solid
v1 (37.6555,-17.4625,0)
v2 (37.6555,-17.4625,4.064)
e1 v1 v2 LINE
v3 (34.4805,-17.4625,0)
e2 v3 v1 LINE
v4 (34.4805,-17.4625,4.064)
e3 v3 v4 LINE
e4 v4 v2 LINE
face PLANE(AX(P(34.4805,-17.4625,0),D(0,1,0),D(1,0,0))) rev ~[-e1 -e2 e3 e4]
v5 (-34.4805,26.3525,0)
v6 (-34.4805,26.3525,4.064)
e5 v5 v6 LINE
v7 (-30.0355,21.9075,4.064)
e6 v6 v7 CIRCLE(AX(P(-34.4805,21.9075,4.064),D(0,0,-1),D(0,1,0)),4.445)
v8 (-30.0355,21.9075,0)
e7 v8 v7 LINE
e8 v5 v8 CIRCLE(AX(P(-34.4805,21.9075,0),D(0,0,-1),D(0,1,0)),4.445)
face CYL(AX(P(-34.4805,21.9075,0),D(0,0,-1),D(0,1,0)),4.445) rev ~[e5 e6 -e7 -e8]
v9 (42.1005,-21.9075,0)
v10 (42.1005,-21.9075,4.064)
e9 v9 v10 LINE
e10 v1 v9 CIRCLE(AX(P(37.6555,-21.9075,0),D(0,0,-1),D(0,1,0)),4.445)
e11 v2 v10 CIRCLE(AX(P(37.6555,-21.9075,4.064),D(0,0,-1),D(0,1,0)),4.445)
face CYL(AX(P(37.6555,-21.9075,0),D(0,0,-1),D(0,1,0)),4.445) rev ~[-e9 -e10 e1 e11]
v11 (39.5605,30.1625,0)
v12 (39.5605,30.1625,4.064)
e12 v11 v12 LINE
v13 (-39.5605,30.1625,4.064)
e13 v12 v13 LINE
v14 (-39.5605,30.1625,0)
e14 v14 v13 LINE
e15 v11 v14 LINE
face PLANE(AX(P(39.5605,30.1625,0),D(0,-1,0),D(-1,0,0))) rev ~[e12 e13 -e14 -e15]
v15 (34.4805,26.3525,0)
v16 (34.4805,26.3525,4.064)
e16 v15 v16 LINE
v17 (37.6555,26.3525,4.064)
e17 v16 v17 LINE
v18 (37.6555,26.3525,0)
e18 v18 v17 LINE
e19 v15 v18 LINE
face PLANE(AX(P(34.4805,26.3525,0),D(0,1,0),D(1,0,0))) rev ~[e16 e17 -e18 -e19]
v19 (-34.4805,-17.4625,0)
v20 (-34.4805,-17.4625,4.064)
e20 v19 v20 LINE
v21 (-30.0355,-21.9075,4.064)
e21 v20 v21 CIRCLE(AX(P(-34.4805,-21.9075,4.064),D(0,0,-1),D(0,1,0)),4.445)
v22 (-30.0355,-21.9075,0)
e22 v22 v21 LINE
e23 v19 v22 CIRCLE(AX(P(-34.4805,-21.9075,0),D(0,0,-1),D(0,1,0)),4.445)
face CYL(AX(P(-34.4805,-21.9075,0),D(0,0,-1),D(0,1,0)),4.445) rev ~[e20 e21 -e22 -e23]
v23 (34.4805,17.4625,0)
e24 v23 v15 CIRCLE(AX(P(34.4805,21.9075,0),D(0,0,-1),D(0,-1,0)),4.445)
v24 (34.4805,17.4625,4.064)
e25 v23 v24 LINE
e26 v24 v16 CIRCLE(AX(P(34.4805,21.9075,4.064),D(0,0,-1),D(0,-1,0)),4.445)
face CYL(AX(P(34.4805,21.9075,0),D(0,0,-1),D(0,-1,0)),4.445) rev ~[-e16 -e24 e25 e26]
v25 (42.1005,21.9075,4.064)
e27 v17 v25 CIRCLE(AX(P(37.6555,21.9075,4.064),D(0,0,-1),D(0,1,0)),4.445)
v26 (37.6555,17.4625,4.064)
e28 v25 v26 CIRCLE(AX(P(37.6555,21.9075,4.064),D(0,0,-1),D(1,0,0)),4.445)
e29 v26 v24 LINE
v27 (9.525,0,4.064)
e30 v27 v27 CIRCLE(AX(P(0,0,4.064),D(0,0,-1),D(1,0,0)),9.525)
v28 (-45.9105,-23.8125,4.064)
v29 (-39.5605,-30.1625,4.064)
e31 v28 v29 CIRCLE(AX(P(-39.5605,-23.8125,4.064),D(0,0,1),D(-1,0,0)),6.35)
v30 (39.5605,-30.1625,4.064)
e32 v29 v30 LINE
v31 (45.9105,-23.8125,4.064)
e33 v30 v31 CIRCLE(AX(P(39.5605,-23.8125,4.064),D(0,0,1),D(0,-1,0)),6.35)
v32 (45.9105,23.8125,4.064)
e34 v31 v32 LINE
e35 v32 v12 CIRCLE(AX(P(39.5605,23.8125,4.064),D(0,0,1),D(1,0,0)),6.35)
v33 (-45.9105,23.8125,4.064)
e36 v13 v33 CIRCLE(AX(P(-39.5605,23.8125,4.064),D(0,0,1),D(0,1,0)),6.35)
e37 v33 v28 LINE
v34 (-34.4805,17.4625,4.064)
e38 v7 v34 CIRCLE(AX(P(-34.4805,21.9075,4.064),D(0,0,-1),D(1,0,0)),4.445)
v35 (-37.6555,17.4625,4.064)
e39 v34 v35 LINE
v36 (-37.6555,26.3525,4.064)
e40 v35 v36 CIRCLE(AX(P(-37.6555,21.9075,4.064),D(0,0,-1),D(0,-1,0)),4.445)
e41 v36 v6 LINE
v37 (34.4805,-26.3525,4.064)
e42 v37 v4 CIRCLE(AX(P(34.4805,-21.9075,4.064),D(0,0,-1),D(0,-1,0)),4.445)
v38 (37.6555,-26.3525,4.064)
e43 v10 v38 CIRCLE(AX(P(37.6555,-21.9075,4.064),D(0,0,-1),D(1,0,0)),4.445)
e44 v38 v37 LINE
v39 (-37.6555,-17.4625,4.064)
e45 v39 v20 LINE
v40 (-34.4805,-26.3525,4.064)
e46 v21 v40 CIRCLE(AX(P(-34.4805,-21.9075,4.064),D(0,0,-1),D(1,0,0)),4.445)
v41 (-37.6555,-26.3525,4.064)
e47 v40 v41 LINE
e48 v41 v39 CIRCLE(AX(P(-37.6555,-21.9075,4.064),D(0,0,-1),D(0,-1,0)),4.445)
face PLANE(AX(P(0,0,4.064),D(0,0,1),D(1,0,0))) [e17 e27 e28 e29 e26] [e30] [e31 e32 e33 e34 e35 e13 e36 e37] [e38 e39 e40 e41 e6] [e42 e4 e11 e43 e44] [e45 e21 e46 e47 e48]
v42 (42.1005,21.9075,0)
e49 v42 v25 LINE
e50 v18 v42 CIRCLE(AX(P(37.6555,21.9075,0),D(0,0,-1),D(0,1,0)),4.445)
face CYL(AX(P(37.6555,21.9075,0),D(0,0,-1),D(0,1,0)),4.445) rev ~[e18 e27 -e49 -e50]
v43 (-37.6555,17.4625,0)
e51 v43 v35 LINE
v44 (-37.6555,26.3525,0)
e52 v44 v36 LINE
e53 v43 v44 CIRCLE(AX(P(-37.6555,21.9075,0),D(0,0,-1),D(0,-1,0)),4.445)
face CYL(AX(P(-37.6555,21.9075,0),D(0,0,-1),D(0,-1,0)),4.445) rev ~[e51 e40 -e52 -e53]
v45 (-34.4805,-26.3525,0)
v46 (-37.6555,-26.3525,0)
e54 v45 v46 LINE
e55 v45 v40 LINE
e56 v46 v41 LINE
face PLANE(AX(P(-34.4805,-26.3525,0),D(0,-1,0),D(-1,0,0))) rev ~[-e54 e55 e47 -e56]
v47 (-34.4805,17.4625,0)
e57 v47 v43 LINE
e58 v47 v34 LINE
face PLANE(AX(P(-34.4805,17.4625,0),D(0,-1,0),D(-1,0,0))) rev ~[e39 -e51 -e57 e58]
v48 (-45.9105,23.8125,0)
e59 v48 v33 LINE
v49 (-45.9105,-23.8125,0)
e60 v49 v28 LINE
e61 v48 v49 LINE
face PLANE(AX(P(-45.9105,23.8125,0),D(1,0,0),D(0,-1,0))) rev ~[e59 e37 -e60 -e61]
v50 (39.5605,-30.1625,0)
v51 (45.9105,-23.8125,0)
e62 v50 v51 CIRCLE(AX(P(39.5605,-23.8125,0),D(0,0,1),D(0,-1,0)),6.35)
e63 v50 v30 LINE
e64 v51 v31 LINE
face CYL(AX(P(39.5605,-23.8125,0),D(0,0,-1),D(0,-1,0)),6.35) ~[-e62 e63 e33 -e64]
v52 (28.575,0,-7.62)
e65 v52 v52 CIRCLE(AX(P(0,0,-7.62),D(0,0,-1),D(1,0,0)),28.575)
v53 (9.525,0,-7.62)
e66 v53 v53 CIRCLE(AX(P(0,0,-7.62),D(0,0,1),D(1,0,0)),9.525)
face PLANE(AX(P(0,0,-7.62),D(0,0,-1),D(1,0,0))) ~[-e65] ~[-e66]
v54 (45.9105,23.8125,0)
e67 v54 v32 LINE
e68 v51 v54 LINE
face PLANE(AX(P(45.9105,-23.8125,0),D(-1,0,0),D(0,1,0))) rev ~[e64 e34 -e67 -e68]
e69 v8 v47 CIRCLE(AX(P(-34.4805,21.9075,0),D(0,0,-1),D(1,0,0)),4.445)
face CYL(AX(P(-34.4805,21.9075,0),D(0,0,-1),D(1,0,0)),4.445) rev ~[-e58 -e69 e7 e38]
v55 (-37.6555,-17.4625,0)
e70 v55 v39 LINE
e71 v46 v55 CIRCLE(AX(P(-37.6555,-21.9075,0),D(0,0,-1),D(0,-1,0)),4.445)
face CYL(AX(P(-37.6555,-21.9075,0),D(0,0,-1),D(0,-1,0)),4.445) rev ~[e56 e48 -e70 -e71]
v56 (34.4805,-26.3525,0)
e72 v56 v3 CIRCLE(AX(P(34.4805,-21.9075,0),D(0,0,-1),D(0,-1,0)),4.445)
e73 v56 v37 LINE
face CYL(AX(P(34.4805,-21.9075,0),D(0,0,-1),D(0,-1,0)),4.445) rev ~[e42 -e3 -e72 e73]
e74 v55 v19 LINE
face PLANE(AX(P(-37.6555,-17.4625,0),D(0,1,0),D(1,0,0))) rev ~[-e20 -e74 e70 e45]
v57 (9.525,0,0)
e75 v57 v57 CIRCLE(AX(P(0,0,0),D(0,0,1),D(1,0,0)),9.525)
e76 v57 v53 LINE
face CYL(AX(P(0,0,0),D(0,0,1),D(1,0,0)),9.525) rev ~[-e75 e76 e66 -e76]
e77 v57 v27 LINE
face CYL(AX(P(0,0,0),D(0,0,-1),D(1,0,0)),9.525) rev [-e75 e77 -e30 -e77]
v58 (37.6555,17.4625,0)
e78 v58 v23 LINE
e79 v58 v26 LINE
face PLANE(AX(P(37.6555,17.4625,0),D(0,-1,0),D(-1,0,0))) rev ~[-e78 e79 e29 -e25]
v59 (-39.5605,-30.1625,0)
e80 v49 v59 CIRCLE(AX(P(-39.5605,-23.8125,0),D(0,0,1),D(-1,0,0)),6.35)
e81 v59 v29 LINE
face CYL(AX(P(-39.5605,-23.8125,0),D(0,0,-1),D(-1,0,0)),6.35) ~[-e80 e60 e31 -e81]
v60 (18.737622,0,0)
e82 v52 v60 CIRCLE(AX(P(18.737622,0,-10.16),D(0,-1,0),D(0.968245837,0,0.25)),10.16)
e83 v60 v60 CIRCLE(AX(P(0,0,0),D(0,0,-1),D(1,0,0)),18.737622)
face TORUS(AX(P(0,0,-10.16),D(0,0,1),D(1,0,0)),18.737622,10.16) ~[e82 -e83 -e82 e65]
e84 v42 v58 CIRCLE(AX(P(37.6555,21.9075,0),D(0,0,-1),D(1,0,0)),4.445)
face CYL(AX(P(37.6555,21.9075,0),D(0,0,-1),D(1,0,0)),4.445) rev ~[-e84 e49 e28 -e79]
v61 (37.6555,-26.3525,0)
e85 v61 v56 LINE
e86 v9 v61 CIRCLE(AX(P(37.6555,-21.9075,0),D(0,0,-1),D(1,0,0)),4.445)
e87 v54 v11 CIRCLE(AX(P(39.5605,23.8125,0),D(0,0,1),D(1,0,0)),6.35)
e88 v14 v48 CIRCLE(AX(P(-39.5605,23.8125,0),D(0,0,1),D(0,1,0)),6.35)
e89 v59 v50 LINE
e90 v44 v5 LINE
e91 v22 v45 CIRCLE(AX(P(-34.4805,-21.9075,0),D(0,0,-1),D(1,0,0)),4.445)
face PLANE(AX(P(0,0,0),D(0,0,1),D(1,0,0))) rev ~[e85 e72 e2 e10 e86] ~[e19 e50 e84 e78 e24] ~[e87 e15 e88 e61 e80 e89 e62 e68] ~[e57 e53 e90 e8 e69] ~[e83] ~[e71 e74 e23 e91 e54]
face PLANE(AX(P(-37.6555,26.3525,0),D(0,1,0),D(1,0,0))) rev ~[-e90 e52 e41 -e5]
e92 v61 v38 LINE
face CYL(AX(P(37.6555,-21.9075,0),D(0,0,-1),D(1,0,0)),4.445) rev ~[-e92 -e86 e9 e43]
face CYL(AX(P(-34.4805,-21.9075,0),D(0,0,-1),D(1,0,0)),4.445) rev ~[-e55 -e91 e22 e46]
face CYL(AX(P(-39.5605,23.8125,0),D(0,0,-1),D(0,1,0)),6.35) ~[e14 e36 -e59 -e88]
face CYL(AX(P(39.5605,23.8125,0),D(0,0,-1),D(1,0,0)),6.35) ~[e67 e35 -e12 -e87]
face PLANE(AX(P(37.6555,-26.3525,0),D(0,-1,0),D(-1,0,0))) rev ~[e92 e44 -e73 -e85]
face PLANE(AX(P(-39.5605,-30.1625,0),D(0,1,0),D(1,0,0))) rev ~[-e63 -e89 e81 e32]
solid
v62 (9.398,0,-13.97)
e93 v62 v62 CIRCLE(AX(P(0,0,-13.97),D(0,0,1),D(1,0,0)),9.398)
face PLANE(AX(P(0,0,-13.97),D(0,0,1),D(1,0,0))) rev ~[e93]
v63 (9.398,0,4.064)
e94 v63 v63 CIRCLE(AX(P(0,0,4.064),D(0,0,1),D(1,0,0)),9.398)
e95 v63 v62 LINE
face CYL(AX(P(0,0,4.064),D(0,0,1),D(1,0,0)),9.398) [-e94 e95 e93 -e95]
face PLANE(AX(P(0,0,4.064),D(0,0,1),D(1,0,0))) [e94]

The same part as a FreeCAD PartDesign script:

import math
import FreeCAD as App
import Part
import Sketcher

V = App.Vector
Q = App.Units.Quantity

doc = App.newDocument("Part")
body = doc.addObject("PartDesign::Body", "Body")

# Sketch on XY plane
sketch1 = body.newObject("Sketcher::SketchObject", "Sketch")
sketch1.AttachmentSupport = (doc.getObject("XY_Plane"), [""])
sketch1.MapMode = "FlatFace"
sketch1.addGeometry([
    Part.LineSegment(V(39.6, 30.2, 0), V(-39.6, 30.2, 0)),  # 0
    Part.ArcOfCircle(Part.Circle(V(-39.6, 23.8, 0), V(0, 0, 1), 6.3), math.radians(90), math.radians(180)),  # 1
    Part.LineSegment(V(-45.9, 23.8, 0), V(-45.9, -23.8, 0)),  # 2
    Part.ArcOfCircle(Part.Circle(V(-39.6, -23.8, 0), V(0, 0, 1), 6.3), math.radians(180), math.radians(270)),  # 3
    Part.LineSegment(V(-39.6, -30.2, 0), V(39.6, -30.2, 0)),  # 4
    Part.ArcOfCircle(Part.Circle(V(39.6, -23.8, 0), V(0, 0, 1), 6.3), math.radians(-90), math.radians(0)),  # 5
    Part.LineSegment(V(45.9, -23.8, 0), V(45.9, 23.8, 0)),  # 6
    Part.ArcOfCircle(Part.Circle(V(39.6, 23.8, 0), V(0, 0, 1), 6.3), math.radians(0), math.radians(90)),  # 7
    Part.LineSegment(V(-37.7, -17.5, 0), V(-34.5, -17.5, 0)),  # 8
    Part.ArcOfCircle(Part.Circle(V(-34.5, -21.9, 0), V(0, 0, 1), 4.4), math.radians(0), math.radians(90)),  # 9
    Part.ArcOfCircle(Part.Circle(V(-34.5, -21.9, 0), V(0, 0, 1), 4.4), math.radians(-90), math.radians(0)),  # 10
    Part.LineSegment(V(-34.5, -26.4, 0), V(-37.7, -26.4, 0)),  # 11
    Part.ArcOfCircle(Part.Circle(V(-37.7, -21.9, 0), V(0, 0, 1), 4.4), math.radians(90), math.radians(270)),  # 12
    Part.LineSegment(V(37.7, -26.4, 0), V(34.5, -26.4, 0)),  # 13
    Part.ArcOfCircle(Part.Circle(V(34.5, -21.9, 0), V(0, 0, 1), 4.4), math.radians(90), math.radians(270)),  # 14
    Part.LineSegment(V(34.5, -17.5, 0), V(37.7, -17.5, 0)),  # 15
    Part.ArcOfCircle(Part.Circle(V(37.7, -21.9, 0), V(0, 0, 1), 4.4), math.radians(0), math.radians(90)),  # 16
    Part.ArcOfCircle(Part.Circle(V(37.7, -21.9, 0), V(0, 0, 1), 4.4), math.radians(-90), math.radians(0)),  # 17
    Part.LineSegment(V(-37.7, 26.4, 0), V(-34.5, 26.4, 0)),  # 18
    Part.ArcOfCircle(Part.Circle(V(-34.5, 21.9, 0), V(0, 0, 1), 4.4), math.radians(0), math.radians(90)),  # 19
    Part.ArcOfCircle(Part.Circle(V(-34.5, 21.9, 0), V(0, 0, 1), 4.4), math.radians(-90), math.radians(0)),  # 20
    Part.LineSegment(V(-34.5, 17.5, 0), V(-37.7, 17.5, 0)),  # 21
    Part.ArcOfCircle(Part.Circle(V(-37.7, 21.9, 0), V(0, 0, 1), 4.4), math.radians(90), math.radians(270)),  # 22
    Part.LineSegment(V(34.5, 26.4, 0), V(37.7, 26.4, 0)),  # 23
    Part.ArcOfCircle(Part.Circle(V(37.7, 21.9, 0), V(0, 0, 1), 4.4), math.radians(0), math.radians(90)),  # 24
    Part.ArcOfCircle(Part.Circle(V(37.7, 21.9, 0), V(0, 0, 1), 4.4), math.radians(-90), math.radians(0)),  # 25
    Part.LineSegment(V(37.7, 17.5, 0), V(34.5, 17.5, 0)),  # 26
    Part.ArcOfCircle(Part.Circle(V(34.5, 21.9, 0), V(0, 0, 1), 4.4), math.radians(90), math.radians(270)),  # 27
], False)
sketch1.addConstraint([
    Sketcher.Constraint("Tangent", 0, 2, 1, 1),
    Sketcher.Constraint("Tangent", 1, 2, 2, 1),
    Sketcher.Constraint("Tangent", 2, 2, 3, 1),
    Sketcher.Constraint("Tangent", 3, 2, 4, 1),
    Sketcher.Constraint("Tangent", 4, 2, 5, 1),
    Sketcher.Constraint("Tangent", 5, 2, 6, 1),
    Sketcher.Constraint("Tangent", 6, 2, 7, 1),
    Sketcher.Constraint("Tangent", 7, 2, 0, 1),
    Sketcher.Constraint("Tangent", 8, 2, 9, 2),
    Sketcher.Constraint("Tangent", 9, 1, 10, 2),
    Sketcher.Constraint("Tangent", 10, 1, 11, 1),
    Sketcher.Constraint("Tangent", 11, 2, 12, 2),
    Sketcher.Constraint("Tangent", 12, 1, 8, 1),
    Sketcher.Constraint("Tangent", 13, 2, 14, 2),
    Sketcher.Constraint("Tangent", 14, 1, 15, 1),
    Sketcher.Constraint("Tangent", 15, 2, 16, 2),
    Sketcher.Constraint("Tangent", 16, 1, 17, 2),
    Sketcher.Constraint("Tangent", 17, 1, 13, 1),
    Sketcher.Constraint("Tangent", 18, 2, 19, 2),
    Sketcher.Constraint("Tangent", 19, 1, 20, 2),
    Sketcher.Constraint("Tangent", 20, 1, 21, 1),
    Sketcher.Constraint("Tangent", 21, 2, 22, 2),
    Sketcher.Constraint("Tangent", 22, 1, 18, 1),
    Sketcher.Constraint("Tangent", 23, 2, 24, 2),
    Sketcher.Constraint("Tangent", 24, 1, 25, 2),
    Sketcher.Constraint("Tangent", 25, 1, 26, 1),
    Sketcher.Constraint("Tangent", 26, 2, 27, 2),
    Sketcher.Constraint("Tangent", 27, 1, 23, 1),
    Sketcher.Constraint("Horizontal", 0),
    Sketcher.Constraint("Vertical", 2),
    Sketcher.Constraint("Horizontal", 4),
    Sketcher.Constraint("Vertical", 6),
    Sketcher.Constraint("Horizontal", 8),
    Sketcher.Constraint("Horizontal", 11),
    Sketcher.Constraint("Horizontal", 13),
    Sketcher.Constraint("Horizontal", 15),
    Sketcher.Constraint("Horizontal", 18),
    Sketcher.Constraint("Horizontal", 21),
    Sketcher.Constraint("Horizontal", 23),
    Sketcher.Constraint("Horizontal", 26),
    Sketcher.Constraint("Equal", 1, 3),
    Sketcher.Constraint("Equal", 3, 5),
    Sketcher.Constraint("Equal", 5, 7),
    Sketcher.Constraint("Equal", 9, 10),
    Sketcher.Constraint("Equal", 12, 14),
    Sketcher.Constraint("Equal", 14, 16),
    Sketcher.Constraint("Equal", 17, 19),
    Sketcher.Constraint("Equal", 19, 20),
    Sketcher.Constraint("Equal", 22, 24),
    Sketcher.Constraint("Equal", 24, 25),
    Sketcher.Constraint("Symmetric", 1, 3, 5, 3, -1, 1),
    Sketcher.Constraint("Symmetric", 14, 3, 19, 3, -1, 1),
    Sketcher.Constraint("Symmetric", 12, 3, 24, 3, -1, 1),
    Sketcher.Constraint("Symmetric", 9, 3, 14, 3, -2),
    Sketcher.Constraint("Symmetric", 16, 1, 24, 1, -1),
    Sketcher.Constraint("Horizontal", 17, 3, 9, 1),
    Sketcher.Constraint("Horizontal", 9, 1, 16, 1),
    Sketcher.Constraint("Horizontal", 27, 3, 19, 1),
    Sketcher.Constraint("Vertical", 12, 3, 22, 3),
    Sketcher.Constraint("Vertical", 14, 3, 27, 3),
    Sketcher.Constraint("Radius", 1, Q("0.25 in")),
    Sketcher.Constraint("Radius", 9, Q("0.175 in")),
    Sketcher.Constraint("DistanceX", 3, 3, 9, 3, Q("0.2 in")),
    Sketcher.Constraint("DistanceY", 9, 3, 1, 3, Q("1.8 in")),
    Sketcher.Constraint("DistanceX", 12, 3, 9, 1, Q("0.3 in")),
    Sketcher.Constraint("DistanceY", 10, 1, 3, 3, Q("0.1 in")),
    Sketcher.Constraint("DistanceX", 0, 2, 0, 1, Q("3.115 in")),
])
pad1 = body.newObject("PartDesign::Pad", "Pad")
pad1.Profile = sketch1
pad1.Length = Q("0.16 in")

# Sketch on XZ plane
sketch2 = body.newObject("Sketcher::SketchObject", "Sketch001")
sketch2.AttachmentSupport = (doc.getObject("XZ_Plane"), [""])
sketch2.MapMode = "FlatFace"
sketch2.addGeometry([
    Part.LineSegment(V(19, 0, 0), V(0, 0, 0)),
    Part.LineSegment(V(0, 0, 0), V(0, -8, 0)),
    Part.LineSegment(V(0, -8, 0), V(29, -8, 0)),
    Part.ArcOfCircle(Part.Circle(V(19, -10, 0), V(0, 0, 1), 10), math.radians(14), math.radians(90)),
], False)
sketch2.addConstraint([
    Sketcher.Constraint("Coincident", 0, 2, 1, 1),
    Sketcher.Constraint("Coincident", 1, 2, 2, 1),
    Sketcher.Constraint("Coincident", 2, 2, 3, 1),
    Sketcher.Constraint("Tangent", 3, 2, 0, 1),
    Sketcher.Constraint("Horizontal", 0),
    Sketcher.Constraint("Vertical", 1),
    Sketcher.Constraint("Horizontal", 2),
    Sketcher.Constraint("Coincident", 0, 2, -1, 1),
    Sketcher.Constraint("Radius", 3, Q("0.4 in")),
    Sketcher.Constraint("DistanceY", 1, 2, 1, 1, Q("0.3 in")),
    Sketcher.Constraint("DistanceX", 2, 1, 2, 2, Q("1.125 in")),
])
revolution = body.newObject("PartDesign::Revolution", "Revolution")
revolution.Profile = sketch2
revolution.ReferenceAxis = (sketch2, ["V_Axis"])
revolution.Angle = 360

# Sketch on XY plane
sketch3 = body.newObject("Sketcher::SketchObject", "Sketch002")
sketch3.AttachmentSupport = (doc.getObject("XY_Plane"), [""])
sketch3.MapMode = "FlatFace"
sketch3.addGeometry(Part.Circle(V(0, 0, 0), V(0, 0, 1), 10), False)
sketch3.addConstraint([
    Sketcher.Constraint("Coincident", 0, 3, -1, 1),
    Sketcher.Constraint("Diameter", 0, Q("0.75 in")),
])
pocket1 = body.newObject("PartDesign::Pocket", "Pocket")
pocket1.Profile = sketch3
pocket1.Type = "ThroughAll"
pocket1.Midplane = True
body2 = doc.addObject("PartDesign::Body", "Body001")

# Sketch on XY plane
sketch4 = body2.newObject("Sketcher::SketchObject", "Sketch003")
sketch4.AttachmentSupport = (doc.getObject("XY_Plane001"), [""])
sketch4.MapMode = "FlatFace"
sketch4.AttachmentOffset = App.Placement(V(0, 0, 0.16 * 25.4), App.Rotation())
sketch4.addGeometry(Part.Circle(V(0, 0, 0), V(0, 0, 1), 9), False)
sketch4.addConstraint([
    Sketcher.Constraint("Coincident", 0, 3, -1, 1),
    Sketcher.Constraint("Diameter", 0, Q("0.74 in")),
])
pad2 = body2.newObject("PartDesign::Pad", "Pad001")
pad2.Profile = sketch4
pad2.Length = Q("0.71 in")
pad2.Reversed = True

doc.recompute()
